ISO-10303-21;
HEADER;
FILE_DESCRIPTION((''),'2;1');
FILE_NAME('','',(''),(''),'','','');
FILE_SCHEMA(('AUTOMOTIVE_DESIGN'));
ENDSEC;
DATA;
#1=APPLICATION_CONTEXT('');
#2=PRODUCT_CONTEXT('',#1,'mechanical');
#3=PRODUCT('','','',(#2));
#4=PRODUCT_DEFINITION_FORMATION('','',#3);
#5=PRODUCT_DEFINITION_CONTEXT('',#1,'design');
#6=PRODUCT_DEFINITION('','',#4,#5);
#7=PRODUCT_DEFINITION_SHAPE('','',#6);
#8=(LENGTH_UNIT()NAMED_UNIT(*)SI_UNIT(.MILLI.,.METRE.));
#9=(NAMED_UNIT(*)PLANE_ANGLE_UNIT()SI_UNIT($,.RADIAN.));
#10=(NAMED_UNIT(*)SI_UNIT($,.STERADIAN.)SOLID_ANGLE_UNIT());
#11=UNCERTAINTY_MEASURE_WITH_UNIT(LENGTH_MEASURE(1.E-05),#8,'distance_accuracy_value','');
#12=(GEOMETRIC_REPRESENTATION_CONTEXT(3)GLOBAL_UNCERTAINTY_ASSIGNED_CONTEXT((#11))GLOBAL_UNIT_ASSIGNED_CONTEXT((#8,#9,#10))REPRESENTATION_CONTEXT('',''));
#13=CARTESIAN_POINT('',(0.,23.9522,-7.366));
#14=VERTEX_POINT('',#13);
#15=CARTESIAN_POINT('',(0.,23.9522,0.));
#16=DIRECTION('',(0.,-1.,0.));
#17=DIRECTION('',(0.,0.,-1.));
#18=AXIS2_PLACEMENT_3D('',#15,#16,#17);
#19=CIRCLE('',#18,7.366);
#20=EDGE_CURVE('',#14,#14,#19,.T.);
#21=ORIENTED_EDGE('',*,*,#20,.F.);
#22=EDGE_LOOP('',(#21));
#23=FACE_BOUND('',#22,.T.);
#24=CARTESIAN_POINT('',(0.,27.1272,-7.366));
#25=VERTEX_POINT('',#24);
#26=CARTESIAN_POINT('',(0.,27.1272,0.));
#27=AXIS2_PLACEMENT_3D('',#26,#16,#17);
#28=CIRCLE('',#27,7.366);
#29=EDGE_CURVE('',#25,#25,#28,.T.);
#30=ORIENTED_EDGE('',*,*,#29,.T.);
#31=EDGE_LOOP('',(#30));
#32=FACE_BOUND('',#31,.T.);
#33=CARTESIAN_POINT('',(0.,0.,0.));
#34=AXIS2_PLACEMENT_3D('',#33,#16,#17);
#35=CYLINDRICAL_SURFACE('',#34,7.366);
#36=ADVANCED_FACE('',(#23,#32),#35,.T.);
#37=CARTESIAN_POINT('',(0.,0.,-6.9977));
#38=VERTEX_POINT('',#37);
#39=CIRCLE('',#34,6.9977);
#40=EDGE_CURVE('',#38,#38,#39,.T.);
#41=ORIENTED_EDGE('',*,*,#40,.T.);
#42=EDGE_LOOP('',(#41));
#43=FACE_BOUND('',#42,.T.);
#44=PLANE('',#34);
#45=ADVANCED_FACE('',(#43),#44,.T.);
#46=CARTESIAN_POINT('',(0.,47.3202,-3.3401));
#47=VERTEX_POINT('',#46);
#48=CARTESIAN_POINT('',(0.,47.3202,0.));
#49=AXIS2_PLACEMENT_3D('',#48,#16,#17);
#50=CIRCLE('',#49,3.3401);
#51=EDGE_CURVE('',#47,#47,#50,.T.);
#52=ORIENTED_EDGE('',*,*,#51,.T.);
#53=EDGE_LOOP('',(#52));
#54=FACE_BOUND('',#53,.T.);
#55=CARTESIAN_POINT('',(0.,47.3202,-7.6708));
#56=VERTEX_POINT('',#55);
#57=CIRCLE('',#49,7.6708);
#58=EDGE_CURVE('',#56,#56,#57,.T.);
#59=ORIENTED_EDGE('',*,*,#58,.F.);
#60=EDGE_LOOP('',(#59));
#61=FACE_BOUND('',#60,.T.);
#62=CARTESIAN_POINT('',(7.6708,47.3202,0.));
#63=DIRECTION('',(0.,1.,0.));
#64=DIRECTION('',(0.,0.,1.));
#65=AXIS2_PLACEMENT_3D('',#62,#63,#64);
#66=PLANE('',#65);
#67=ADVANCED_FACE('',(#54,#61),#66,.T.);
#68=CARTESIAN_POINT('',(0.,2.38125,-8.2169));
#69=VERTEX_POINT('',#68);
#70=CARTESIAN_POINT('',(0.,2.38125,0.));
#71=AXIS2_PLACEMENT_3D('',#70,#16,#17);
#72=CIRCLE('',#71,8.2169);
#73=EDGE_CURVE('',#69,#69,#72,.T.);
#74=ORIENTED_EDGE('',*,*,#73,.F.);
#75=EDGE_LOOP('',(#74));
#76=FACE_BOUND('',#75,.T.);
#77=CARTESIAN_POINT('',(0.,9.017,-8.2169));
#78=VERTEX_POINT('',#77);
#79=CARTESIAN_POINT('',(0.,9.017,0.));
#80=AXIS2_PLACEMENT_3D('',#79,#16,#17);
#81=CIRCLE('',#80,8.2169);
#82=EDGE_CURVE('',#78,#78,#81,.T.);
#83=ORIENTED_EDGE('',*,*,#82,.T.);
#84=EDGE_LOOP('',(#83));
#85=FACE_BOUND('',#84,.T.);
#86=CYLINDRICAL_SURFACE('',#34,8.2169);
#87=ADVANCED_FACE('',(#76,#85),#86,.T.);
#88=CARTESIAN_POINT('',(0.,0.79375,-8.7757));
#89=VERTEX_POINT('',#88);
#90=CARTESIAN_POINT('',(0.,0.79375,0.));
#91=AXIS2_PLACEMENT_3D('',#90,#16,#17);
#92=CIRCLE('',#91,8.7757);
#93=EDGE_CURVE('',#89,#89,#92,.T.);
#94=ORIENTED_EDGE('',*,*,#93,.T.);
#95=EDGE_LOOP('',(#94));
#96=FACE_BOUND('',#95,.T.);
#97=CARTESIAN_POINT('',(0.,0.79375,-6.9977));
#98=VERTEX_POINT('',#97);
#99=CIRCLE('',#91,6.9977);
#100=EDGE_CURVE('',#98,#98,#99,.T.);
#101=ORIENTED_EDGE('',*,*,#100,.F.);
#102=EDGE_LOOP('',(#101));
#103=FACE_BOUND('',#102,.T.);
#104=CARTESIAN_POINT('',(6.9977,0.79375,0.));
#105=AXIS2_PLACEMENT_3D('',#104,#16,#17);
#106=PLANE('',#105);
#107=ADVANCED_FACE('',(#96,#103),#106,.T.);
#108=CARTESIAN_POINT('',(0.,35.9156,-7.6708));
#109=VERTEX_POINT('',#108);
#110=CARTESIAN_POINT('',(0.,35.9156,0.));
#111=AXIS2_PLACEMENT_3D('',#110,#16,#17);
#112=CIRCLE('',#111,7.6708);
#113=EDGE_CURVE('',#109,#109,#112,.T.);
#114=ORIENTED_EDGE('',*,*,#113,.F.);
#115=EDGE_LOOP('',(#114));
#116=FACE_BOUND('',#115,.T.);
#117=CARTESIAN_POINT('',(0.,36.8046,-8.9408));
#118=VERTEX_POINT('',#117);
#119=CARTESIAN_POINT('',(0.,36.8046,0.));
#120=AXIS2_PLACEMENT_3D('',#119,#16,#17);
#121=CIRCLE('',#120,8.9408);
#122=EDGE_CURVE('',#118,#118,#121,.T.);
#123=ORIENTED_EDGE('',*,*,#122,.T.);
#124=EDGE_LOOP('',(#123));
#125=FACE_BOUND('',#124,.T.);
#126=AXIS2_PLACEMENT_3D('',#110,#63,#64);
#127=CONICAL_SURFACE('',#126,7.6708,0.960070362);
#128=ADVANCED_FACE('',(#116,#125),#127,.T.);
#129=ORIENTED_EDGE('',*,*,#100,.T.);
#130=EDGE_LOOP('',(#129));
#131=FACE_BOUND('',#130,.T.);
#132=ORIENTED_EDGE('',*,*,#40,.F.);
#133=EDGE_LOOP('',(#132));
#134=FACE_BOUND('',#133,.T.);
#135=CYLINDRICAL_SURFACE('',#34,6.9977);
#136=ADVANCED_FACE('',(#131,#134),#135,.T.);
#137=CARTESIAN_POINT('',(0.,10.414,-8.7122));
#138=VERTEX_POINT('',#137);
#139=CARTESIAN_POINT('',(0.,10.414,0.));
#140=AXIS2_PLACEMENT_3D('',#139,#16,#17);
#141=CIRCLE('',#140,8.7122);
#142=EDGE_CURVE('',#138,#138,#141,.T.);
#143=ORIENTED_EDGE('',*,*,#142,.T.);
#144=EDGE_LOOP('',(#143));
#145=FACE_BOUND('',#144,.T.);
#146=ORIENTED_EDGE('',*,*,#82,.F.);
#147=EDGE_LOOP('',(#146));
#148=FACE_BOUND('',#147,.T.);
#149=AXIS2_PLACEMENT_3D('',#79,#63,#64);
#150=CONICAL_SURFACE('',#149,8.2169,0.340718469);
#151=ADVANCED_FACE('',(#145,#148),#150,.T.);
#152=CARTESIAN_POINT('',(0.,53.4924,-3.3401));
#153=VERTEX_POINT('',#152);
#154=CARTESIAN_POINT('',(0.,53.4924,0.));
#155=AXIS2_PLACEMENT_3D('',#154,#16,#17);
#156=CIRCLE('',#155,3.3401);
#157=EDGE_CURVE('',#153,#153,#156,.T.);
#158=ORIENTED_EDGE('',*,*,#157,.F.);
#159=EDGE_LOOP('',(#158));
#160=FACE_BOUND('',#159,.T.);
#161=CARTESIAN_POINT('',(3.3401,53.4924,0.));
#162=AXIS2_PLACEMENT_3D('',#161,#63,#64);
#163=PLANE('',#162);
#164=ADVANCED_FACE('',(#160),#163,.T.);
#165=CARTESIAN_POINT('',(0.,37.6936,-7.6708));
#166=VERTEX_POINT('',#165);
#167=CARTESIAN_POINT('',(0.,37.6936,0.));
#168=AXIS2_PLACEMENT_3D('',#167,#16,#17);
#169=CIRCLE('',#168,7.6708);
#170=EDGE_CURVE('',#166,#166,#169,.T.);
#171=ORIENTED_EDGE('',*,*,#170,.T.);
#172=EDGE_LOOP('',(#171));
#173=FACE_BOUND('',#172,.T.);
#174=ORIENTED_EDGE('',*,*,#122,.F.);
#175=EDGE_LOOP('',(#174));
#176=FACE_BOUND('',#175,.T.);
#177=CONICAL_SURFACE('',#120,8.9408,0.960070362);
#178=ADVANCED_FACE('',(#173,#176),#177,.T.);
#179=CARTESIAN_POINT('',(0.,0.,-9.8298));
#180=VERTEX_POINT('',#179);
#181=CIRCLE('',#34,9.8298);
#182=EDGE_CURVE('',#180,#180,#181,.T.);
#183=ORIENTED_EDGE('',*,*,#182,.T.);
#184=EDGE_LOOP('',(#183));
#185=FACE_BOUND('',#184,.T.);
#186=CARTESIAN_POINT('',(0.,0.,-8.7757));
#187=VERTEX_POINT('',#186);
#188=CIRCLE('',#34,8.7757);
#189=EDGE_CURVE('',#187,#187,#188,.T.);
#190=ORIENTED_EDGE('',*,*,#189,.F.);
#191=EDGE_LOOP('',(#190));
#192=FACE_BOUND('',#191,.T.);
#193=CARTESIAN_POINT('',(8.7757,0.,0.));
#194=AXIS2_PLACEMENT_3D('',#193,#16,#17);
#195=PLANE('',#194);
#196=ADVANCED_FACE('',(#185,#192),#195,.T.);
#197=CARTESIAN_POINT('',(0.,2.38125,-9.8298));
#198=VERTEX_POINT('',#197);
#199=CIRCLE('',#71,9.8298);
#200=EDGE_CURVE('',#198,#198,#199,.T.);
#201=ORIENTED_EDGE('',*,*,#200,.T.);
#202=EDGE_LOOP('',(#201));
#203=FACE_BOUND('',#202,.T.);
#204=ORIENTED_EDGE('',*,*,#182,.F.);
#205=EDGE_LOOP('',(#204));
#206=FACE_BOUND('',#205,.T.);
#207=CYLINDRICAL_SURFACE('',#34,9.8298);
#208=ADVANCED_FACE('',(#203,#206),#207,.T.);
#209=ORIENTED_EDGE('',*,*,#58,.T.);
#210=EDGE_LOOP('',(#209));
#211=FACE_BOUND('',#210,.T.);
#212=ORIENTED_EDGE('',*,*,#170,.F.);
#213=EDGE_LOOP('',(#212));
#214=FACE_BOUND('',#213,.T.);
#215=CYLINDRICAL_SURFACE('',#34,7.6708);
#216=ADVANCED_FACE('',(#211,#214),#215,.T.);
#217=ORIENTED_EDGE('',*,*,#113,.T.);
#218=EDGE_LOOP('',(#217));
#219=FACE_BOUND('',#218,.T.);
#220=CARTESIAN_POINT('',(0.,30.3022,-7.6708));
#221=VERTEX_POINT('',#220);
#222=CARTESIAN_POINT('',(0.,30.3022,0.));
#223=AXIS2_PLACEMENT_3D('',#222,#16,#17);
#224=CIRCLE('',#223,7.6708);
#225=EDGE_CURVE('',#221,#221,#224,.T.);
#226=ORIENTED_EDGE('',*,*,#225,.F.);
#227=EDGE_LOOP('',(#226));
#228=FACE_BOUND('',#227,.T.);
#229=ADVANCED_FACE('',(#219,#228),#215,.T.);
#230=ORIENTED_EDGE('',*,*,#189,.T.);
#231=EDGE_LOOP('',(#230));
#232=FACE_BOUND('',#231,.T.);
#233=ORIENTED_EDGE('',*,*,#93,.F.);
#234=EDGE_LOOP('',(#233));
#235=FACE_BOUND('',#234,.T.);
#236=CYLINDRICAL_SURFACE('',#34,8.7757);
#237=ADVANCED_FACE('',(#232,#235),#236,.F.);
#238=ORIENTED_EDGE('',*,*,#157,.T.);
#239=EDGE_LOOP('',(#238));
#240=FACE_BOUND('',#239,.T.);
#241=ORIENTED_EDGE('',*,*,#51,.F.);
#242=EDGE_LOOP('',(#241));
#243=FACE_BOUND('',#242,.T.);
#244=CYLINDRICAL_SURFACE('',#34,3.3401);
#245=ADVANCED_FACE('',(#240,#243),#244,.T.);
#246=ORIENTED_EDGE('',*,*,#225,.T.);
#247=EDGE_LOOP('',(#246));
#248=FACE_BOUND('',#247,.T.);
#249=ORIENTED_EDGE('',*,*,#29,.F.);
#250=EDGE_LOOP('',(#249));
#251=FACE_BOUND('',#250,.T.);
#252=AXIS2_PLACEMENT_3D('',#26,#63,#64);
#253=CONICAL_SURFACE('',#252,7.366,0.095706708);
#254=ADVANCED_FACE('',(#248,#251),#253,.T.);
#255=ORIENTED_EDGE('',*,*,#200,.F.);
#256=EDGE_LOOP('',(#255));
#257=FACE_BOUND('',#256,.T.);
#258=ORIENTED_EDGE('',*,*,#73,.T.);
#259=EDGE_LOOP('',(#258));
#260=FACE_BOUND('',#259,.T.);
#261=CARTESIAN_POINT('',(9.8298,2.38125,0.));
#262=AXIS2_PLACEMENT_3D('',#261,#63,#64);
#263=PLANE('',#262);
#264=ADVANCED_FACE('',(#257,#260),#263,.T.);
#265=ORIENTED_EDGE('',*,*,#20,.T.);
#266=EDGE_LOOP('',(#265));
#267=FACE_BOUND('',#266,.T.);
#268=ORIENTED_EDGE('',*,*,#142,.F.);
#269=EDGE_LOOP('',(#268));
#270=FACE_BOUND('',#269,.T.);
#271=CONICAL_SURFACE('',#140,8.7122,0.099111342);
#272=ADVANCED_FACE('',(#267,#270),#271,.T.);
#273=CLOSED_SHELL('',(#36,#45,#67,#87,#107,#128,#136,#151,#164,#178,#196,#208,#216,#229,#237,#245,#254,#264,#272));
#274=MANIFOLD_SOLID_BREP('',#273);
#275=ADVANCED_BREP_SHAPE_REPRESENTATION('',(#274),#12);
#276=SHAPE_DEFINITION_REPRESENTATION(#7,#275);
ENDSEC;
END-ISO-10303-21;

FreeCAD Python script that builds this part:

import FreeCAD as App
import Part
import Sketcher
from FreeCAD import Vector
Q = App.Units.Quantity

doc = App.newDocument("Part")
params = doc.addObject("Spreadsheet::Sheet", "Params")
for row, (alias, value) in enumerate([
    ("sketch1_width", "0.07 in"),
    ("sketch1_height", "0.03125 in"),
    ("sketch1_height2", "0.09375 in"),
    ("sketch1_height3", "0.125 in"),
    ("sketch1_height4", "0.221 in"),
    ("revolution_angle", "360 deg"),
], start=1):
    params.set(f"A{row}", alias)
    params.set(f"B{row}", "=" + value)
    params.setAlias(f"B{row}", alias)

body = doc.addObject("PartDesign::Body", "Body")

# Sketch on XY plane
sketch1 = doc.addObject("Sketcher::SketchObject", "Sketch")
body.addObject(sketch1)
sketch1.AttachmentSupport = (doc.XY_Plane, [""])
sketch1.MapMode = "FlatFace"
sketch1.addGeometry([
    Part.LineSegment(Vector(0, 0, 0), Vector(7, 0, 0)),  # 0
    Part.LineSegment(Vector(7, 0, 0), Vector(7, 0.8, 0)),  # 1
    Part.LineSegment(Vector(7, 0.8, 0), Vector(8.8, 0.8, 0)),  # 2
    Part.LineSegment(Vector(8.8, 0.8, 0), Vector(8.8, 0, 0)),  # 3
    Part.LineSegment(Vector(8.8, 0, 0), Vector(9.8, 0, 0)),  # 4
    Part.LineSegment(Vector(9.8, 0, 0), Vector(9.8, 2.4, 0)),  # 5
    Part.LineSegment(Vector(9.8, 2.4, 0), Vector(8.2, 2.4, 0)),  # 6
    Part.LineSegment(Vector(8.2, 2.4, 0), Vector(8.2, 9, 0)),  # 7
    Part.LineSegment(Vector(8.2, 9, 0), Vector(8.7, 10.4, 0)),  # 8
    Part.LineSegment(Vector(8.7, 10.4, 0), Vector(7.4, 24, 0)),  # 9
    Part.LineSegment(Vector(7.4, 24, 0), Vector(7.4, 27.1, 0)),  # 10
    Part.LineSegment(Vector(7.4, 27.1, 0), Vector(7.7, 30.3, 0)),  # 11
    Part.LineSegment(Vector(7.7, 30.3, 0), Vector(7.7, 35.9, 0)),  # 12
    Part.LineSegment(Vector(7.7, 35.9, 0), Vector(8.9, 36.8, 0)),  # 13
    Part.LineSegment(Vector(8.9, 36.8, 0), Vector(7.7, 37.7, 0)),  # 14
    Part.LineSegment(Vector(7.7, 37.7, 0), Vector(7.7, 47.3, 0)),  # 15
    Part.LineSegment(Vector(7.7, 47.3, 0), Vector(3.3, 47.3, 0)),  # 16
    Part.LineSegment(Vector(3.3, 47.3, 0), Vector(3.3, 53.5, 0)),  # 17
    Part.LineSegment(Vector(3.3, 53.5, 0), Vector(0, 53.5, 0)),  # 18
    Part.LineSegment(Vector(0, 53.5, 0), Vector(0, 0, 0)),  # 19
], False)
sketch1.addConstraint([
    Sketcher.Constraint("Coincident", 0, 2, 1, 1),
    Sketcher.Constraint("Coincident", 1, 2, 2, 1),
    Sketcher.Constraint("Coincident", 2, 2, 3, 1),
    Sketcher.Constraint("Coincident", 3, 2, 4, 1),
    Sketcher.Constraint("Coincident", 4, 2, 5, 1),
    Sketcher.Constraint("Coincident", 5, 2, 6, 1),
    Sketcher.Constraint("Coincident", 6, 2, 7, 1),
    Sketcher.Constraint("Coincident", 7, 2, 8, 1),
    Sketcher.Constraint("Coincident", 8, 2, 9, 1),
    Sketcher.Constraint("Coincident", 9, 2, 10, 1),
    Sketcher.Constraint("Coincident", 10, 2, 11, 1),
    Sketcher.Constraint("Coincident", 11, 2, 12, 1),
    Sketcher.Constraint("Coincident", 12, 2, 13, 1),
    Sketcher.Constraint("Coincident", 13, 2, 14, 1),
    Sketcher.Constraint("Coincident", 14, 2, 15, 1),
    Sketcher.Constraint("Coincident", 15, 2, 16, 1),
    Sketcher.Constraint("Coincident", 16, 2, 17, 1),
    Sketcher.Constraint("Coincident", 17, 2, 18, 1),
    Sketcher.Constraint("Coincident", 18, 2, 19, 1),
    Sketcher.Constraint("Coincident", 19, 2, 0, 1),
    Sketcher.Constraint("Horizontal", 0),
    Sketcher.Constraint("Vertical", 1),
    Sketcher.Constraint("Horizontal", 2),
    Sketcher.Constraint("Vertical", 3),
    Sketcher.Constraint("Horizontal", 4),
    Sketcher.Constraint("Vertical", 5),
    Sketcher.Constraint("Horizontal", 6),
    Sketcher.Constraint("Vertical", 7),
    Sketcher.Constraint("Vertical", 10),
    Sketcher.Constraint("Vertical", 12),
    Sketcher.Constraint("Vertical", 15),
    Sketcher.Constraint("Horizontal", 16),
    Sketcher.Constraint("Vertical", 17),
    Sketcher.Constraint("Horizontal", 18),
    Sketcher.Constraint("Vertical", 19),
    Sketcher.Constraint("Coincident", 19, 2, -1, 1),
    Sketcher.Constraint("PointOnObject", 3, 2, -1),
    Sketcher.Constraint("Vertical", 12, 2, 14, 2),
    Sketcher.Constraint("Equal", 13, 14),
    Sketcher.Constraint("DistanceX", 2, 1, 2, 2, Q("0.07 in")),
    Sketcher.Constraint("DistanceY", 1, 1, 1, 2, Q("0.03125 in")),
    Sketcher.Constraint("DistanceY", 5, 1, 5, 2, Q("0.09375 in")),
    Sketcher.Constraint("DistanceY", 10, 1, 10, 2, Q("0.125 in")),
    Sketcher.Constraint("DistanceY", 12, 1, 12, 2, Q("0.221 in")),
    Sketcher.Constraint("DistanceY", 15, 1, 15, 2, Q("0.379 in")),
    Sketcher.Constraint("DistanceY", 17, 1, 17, 2, Q("0.243 in")),
    Sketcher.Constraint("DistanceY", 19, 2, 19, 1, Q("2.106 in")),
    Sketcher.Constraint("DistanceY", -1, 1, 8, 2, Q("0.41 in")),
    Sketcher.Constraint("DistanceX", -1, 1, 9, 2, Q("0.29 in")),
    Sketcher.Constraint("DistanceY", 9, 2, 11, 2, Q("0.25 in")),
    Sketcher.Constraint("DistanceX", 12, 2, 13, 2, Q("0.05 in")),
    Sketcher.Constraint("DistanceY", 12, 2, 14, 2, Q("0.07 in")),
    Sketcher.Constraint("DistanceX", 0, 1, 0, 2, Q("0.2755 in")),
    Sketcher.Constraint("DistanceX", 4, 1, 4, 2, Q("0.0415 in")),
    Sketcher.Constraint("DistanceX", 6, 2, 6, 1, Q("0.0635 in")),
    Sketcher.Constraint("DistanceX", 16, 2, 16, 1, Q("0.1705 in")),
    Sketcher.Constraint("DistanceX", 18, 2, 18, 1, Q("0.1315 in")),
    Sketcher.Constraint("DistanceY", -1, 1, 7, 2, Q("0.355 in")),
    Sketcher.Constraint("DistanceX", -1, 1, 8, 2, Q("0.343 in")),
])
sketch1.setExpression("Constraints[39]", "Params.sketch1_width")
sketch1.setExpression("Constraints[40]", "Params.sketch1_height")
sketch1.setExpression("Constraints[41]", "Params.sketch1_height2")
sketch1.setExpression("Constraints[42]", "Params.sketch1_height3")
sketch1.setExpression("Constraints[43]", "Params.sketch1_height4")
revolution = doc.addObject("PartDesign::Revolution", "Revolution")
body.addObject(revolution)
revolution.Profile = sketch1
revolution.ReferenceAxis = (sketch1, ["V_Axis"])
revolution.setExpression("Angle", "Params.revolution_angle")

doc.recompute()
